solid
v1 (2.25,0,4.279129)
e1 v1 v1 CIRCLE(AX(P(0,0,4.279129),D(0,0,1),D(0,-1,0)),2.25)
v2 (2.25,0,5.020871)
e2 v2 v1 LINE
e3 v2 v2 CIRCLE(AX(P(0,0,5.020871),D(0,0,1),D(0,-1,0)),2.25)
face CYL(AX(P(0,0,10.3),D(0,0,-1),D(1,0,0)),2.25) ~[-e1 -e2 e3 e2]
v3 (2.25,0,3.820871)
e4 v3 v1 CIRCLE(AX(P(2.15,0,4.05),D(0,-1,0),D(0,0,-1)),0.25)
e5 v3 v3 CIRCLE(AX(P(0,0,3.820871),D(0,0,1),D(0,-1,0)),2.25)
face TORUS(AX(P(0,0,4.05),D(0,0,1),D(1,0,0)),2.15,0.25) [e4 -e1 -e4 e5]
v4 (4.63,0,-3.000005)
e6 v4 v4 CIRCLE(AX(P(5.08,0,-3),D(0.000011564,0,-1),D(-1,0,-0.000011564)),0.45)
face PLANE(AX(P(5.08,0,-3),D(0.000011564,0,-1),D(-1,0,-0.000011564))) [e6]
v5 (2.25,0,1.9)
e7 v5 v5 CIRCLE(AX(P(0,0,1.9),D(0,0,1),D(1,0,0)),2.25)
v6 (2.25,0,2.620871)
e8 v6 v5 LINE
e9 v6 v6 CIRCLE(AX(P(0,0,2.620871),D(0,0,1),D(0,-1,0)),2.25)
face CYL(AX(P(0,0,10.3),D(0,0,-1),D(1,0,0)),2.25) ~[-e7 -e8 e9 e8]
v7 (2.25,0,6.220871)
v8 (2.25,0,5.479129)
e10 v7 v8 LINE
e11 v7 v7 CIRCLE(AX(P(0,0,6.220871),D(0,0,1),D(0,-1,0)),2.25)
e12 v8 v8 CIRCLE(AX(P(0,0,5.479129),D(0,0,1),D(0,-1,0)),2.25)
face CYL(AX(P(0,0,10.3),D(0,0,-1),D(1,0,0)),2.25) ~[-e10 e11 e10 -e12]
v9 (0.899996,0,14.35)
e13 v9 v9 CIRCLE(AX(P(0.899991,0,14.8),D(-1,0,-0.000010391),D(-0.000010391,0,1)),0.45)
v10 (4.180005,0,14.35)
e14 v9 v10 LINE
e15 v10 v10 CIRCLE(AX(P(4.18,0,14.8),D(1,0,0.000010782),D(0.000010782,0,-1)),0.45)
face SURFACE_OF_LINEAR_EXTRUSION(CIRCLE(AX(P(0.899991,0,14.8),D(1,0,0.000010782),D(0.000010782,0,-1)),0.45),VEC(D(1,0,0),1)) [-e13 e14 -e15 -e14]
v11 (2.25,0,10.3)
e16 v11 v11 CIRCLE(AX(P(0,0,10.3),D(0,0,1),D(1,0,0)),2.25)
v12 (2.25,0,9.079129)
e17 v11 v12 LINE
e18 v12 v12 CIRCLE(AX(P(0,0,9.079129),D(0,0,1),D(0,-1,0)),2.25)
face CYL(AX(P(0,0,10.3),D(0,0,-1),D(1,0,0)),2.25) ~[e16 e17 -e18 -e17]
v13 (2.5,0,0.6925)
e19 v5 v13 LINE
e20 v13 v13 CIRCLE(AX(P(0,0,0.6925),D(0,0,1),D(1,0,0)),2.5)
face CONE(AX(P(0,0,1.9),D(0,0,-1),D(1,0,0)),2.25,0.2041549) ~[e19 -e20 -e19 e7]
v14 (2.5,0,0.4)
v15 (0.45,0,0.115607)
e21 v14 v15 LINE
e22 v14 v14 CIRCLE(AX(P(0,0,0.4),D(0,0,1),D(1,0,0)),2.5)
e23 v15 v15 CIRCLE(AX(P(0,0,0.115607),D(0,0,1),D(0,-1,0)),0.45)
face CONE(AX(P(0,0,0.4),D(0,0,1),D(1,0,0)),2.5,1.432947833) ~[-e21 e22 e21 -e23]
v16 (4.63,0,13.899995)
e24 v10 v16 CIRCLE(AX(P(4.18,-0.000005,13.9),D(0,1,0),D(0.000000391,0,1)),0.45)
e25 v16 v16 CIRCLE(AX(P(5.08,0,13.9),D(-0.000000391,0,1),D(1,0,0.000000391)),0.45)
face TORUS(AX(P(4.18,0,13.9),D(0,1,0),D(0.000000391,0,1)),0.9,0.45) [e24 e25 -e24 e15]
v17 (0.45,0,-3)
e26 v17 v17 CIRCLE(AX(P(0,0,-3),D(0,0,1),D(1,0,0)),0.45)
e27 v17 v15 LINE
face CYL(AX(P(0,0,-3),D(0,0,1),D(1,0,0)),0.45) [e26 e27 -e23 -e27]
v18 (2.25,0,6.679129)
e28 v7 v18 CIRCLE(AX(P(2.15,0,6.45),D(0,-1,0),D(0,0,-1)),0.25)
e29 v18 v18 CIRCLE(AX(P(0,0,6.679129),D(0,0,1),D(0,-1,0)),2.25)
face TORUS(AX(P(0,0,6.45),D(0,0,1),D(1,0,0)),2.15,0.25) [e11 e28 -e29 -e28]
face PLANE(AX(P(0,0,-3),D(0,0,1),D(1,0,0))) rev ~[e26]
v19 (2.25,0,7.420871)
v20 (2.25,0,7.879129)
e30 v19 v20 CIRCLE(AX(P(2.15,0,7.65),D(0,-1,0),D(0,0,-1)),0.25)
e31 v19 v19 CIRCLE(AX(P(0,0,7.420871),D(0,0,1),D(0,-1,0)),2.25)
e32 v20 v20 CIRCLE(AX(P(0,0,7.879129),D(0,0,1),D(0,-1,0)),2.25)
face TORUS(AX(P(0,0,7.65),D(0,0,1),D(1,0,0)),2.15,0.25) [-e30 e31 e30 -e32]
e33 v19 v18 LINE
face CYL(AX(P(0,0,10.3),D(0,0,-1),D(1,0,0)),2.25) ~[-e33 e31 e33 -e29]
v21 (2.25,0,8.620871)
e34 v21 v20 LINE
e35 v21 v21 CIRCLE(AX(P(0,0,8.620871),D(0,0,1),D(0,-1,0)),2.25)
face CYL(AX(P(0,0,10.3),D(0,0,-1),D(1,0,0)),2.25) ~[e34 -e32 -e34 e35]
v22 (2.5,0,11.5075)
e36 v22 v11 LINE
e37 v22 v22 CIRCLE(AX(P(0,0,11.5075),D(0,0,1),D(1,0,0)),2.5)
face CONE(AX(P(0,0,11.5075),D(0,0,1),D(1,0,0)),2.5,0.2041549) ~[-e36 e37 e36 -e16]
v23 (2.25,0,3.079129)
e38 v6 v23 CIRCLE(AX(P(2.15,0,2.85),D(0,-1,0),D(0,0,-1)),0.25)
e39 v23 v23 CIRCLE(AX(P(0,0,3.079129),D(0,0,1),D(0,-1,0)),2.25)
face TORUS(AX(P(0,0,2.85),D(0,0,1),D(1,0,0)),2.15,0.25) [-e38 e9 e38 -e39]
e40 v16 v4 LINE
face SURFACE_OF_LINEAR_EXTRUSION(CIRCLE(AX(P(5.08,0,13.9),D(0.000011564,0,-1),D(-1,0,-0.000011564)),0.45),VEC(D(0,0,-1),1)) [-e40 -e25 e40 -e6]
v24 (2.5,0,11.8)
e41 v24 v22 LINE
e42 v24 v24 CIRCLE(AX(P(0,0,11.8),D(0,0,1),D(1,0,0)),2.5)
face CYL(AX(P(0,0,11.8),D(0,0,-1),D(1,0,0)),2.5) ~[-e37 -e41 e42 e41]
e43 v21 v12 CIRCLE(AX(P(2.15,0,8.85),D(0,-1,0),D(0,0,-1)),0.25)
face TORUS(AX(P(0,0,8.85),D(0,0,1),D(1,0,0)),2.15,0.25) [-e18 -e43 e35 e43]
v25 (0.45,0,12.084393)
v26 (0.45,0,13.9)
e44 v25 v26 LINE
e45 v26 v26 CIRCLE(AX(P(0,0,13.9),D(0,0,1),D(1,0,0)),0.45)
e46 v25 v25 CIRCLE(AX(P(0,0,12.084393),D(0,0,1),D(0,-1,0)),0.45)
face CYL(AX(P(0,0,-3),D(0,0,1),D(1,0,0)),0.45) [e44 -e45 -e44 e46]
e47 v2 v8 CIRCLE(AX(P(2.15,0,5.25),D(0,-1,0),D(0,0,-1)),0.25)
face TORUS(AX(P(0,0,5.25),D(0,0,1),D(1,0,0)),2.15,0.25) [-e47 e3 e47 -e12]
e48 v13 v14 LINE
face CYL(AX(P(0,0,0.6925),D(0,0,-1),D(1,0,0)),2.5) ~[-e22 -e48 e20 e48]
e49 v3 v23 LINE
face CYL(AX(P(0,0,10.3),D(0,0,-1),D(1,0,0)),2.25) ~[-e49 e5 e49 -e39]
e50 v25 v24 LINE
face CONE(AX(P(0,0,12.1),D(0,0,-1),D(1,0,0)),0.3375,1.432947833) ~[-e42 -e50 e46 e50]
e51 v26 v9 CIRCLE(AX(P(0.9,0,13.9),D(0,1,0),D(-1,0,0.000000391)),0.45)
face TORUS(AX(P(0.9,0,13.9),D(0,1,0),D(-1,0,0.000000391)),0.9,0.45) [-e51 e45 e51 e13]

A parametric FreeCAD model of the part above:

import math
import FreeCAD as App
import Part
import Sketcher
from FreeCAD import Vector
Q = App.Units.Quantity


def add_polygon(sketch, points):
    """Adds a closed chain of lines whose ends are joined by coincident constraints."""
    first, n = sketch.GeometryCount, len(points)
    for a, b in zip(points, points[1:] + points[:1]):
        sketch.addGeometry(Part.LineSegment(App.Vector(*a, 0), App.Vector(*b, 0)), False)
    for i in range(n):
        sketch.addConstraint(Sketcher.Constraint("Coincident", first + i, 2, first + (i + 1) % n, 1))

doc = App.newDocument("Part")
body = doc.addObject("PartDesign::Body", "Body")

# Sketch on XZ plane
sketch1 = doc.addObject("Sketcher::SketchObject", "Sketch")
body.addObject(sketch1)
sketch1.AttachmentSupport = (doc.XZ_Plane, [""])
sketch1.MapMode = "FlatFace"
add_polygon(sketch1, [(0, 12.1), (0, 0.1), (0.34, 0.1), (2.5, 0.4), (2.5, 0.69), (2.25, 1.9), (2.25, 10.3), (2.5, 11.51), (2.5, 11.8), (0.34, 12.1)])  # lines 0-9
sketch1.addConstraint([
    Sketcher.Constraint("Vertical", 0),
    Sketcher.Constraint("Horizontal", 1),
    Sketcher.Constraint("Vertical", 3),
    Sketcher.Constraint("Vertical", 5),
    Sketcher.Constraint("Vertical", 7),
    Sketcher.Constraint("Horizontal", 9),
    Sketcher.Constraint("PointOnObject", 0, 2, -2),
    Sketcher.Constraint("Vertical", 3, 2, 6, 2),
    Sketcher.Constraint("Vertical", 1, 2, 8, 2),
    Sketcher.Constraint("Equal", 3, 7),
    Sketcher.Constraint("Equal", 4, 6),
    Sketcher.Constraint("Equal", 2, 8),
    Sketcher.Constraint("DistanceY", 0, 2, 0, 1, Q("12 mm")),
    Sketcher.Constraint("DistanceY", 5, 1, 5, 2, Q("8.4 mm")),
    Sketcher.Constraint("DistanceY", -1, 1, 0, 2, Q("0.1 mm")),
    Sketcher.Constraint("DistanceX", -1, 1, 2, 2, Q("2.5 mm")),
    Sketcher.Constraint("DistanceY", -1, 1, 2, 2, Q("0.4 mm")),
    Sketcher.Constraint("DistanceX", -1, 1, 4, 2, Q("2.25 mm")),
    Sketcher.Constraint("DistanceX", 1, 1, 1, 2, Q("0.3375 mm")),
    Sketcher.Constraint("DistanceY", 3, 1, 3, 2, Q("0.2925 mm")),
])
revolution = doc.addObject("PartDesign::Revolution", "Revolution")
body.addObject(revolution)
revolution.Profile = sketch1
revolution.ReferenceAxis = (sketch1, ["V_Axis"])
revolution.Angle = 360
body2 = doc.addObject("PartDesign::Body", "Body001")

# Sketch on XY plane
sketch2 = doc.addObject("Sketcher::SketchObject", "Sketch001")
body2.addObject(sketch2)
sketch2.AttachmentSupport = (doc.getObject("XY_Plane001"), [""])
sketch2.MapMode = "FlatFace"
sketch2.AttachmentOffset = App.Placement(Vector(0, 0, -2), App.Rotation())
sketch2.addGeometry(Part.Circle(Vector(0, 0, 0), Vector(0, 0, 1), 0.45), False)
sketch2.addConstraint([
    Sketcher.Constraint("Coincident", 0, 3, -1, 1),
    Sketcher.Constraint("Diameter", 0, Q("0.9 mm")),
])

# Sketch on XZ plane
sketch3 = doc.addObject("Sketcher::SketchObject", "Sketch002")
body2.addObject(sketch3)
sketch3.AttachmentSupport = (doc.getObject("XZ_Plane001"), [""])
sketch3.MapMode = "FlatFace"
sketch3.addGeometry([
    Part.LineSegment(Vector(0, -3, 0), Vector(0, 13.9, 0)),  # 0
    Part.ArcOfCircle(Part.Circle(Vector(0.9, 13.9, 0), Vector(0, 0, 1), 0.9), math.radians(90), math.radians(180)),  # 1
    Part.LineSegment(Vector(0.9, 14.8, 0), Vector(4.2, 14.8, 0)),  # 2
    Part.ArcOfCircle(Part.Circle(Vector(4.2, 13.9, 0), Vector(0, 0, 1), 0.9), math.radians(0), math.radians(90)),  # 3
    Part.LineSegment(Vector(5.1, 13.9, 0), Vector(5.1, -3, 0)),  # 4
], False)
sketch3.addConstraint([
    Sketcher.Constraint("Tangent", 0, 2, 1, 2),
    Sketcher.Constraint("Coincident", 1, 1, 2, 1),
    Sketcher.Constraint("Tangent", 2, 2, 3, 2),
    Sketcher.Constraint("Tangent", 3, 1, 4, 1),
    Sketcher.Constraint("Vertical", 0),
    Sketcher.Constraint("Horizontal", 2),
    Sketcher.Constraint("Vertical", 4),
    Sketcher.Constraint("Equal", 1, 3),
    Sketcher.Constraint("PointOnObject", 0, 1, -2),
    Sketcher.Constraint("Horizontal", 0, 1, 4, 2),
    Sketcher.Constraint("Radius", 1, Q("0.9 mm")),
    Sketcher.Constraint("DistanceY", 0, 1, 0, 2, Q("16.9 mm")),
    Sketcher.Constraint("DistanceY", 0, 1, -1, 1, Q("3 mm")),
    Sketcher.Constraint("DistanceX", -1, 1, 3, 3, Q("4.18 mm")),
    Sketcher.Constraint("DistanceX", 2, 1, 2, 2, Q("3.280009 mm")),
])
doc.recompute()

additivepipe = doc.addObject("PartDesign::AdditivePipe", "AdditivePipe")
body2.addObject(additivepipe)
additivepipe.Profile = sketch2
additivepipe.Spine = (sketch3, ["Edge1", "Edge2", "Edge3", "Edge4", "Edge5"])
body3 = doc.addObject("PartDesign::Body", "Body002")

# Sketch on XZ plane
sketch4 = doc.addObject("Sketcher::SketchObject", "Sketch003")
body3.addObject(sketch4)
sketch4.AttachmentSupport = (doc.getObject("XZ_Plane002"), [""])
sketch4.MapMode = "FlatFace"
sketch4.addGeometry([
    Part.LineSegment(Vector(2, 9.8, 0), Vector(2, 1.9, 0)),  # 0
    Part.LineSegment(Vector(2, 1.9, 0), Vector(2.15, 1.9, 0)),  # 1
    Part.LineSegment(Vector(2.15, 1.9, 0), Vector(2.15, 2.6, 0)),  # 2
    Part.ArcOfCircle(Part.Circle(Vector(2.15, 2.85, 0), Vector(0, 0, 1), 0.25), math.radians(-90), math.radians(90)),  # 3
    Part.LineSegment(Vector(2.15, 3.1, 0), Vector(2.15, 3.8, 0)),  # 4
    Part.ArcOfCircle(Part.Circle(Vector(2.15, 4.05, 0), Vector(0, 0, 1), 0.25), math.radians(-90), math.radians(90)),  # 5
    Part.LineSegment(Vector(2.15, 4.3, 0), Vector(2.15, 5, 0)),  # 6
    Part.ArcOfCircle(Part.Circle(Vector(2.15, 5.25, 0), Vector(0, 0, 1), 0.25), math.radians(-90), math.radians(90)),  # 7
    Part.LineSegment(Vector(2.15, 5.5, 0), Vector(2.15, 6.2, 0)),  # 8
    Part.ArcOfCircle(Part.Circle(Vector(2.15, 6.45, 0), Vector(0, 0, 1), 0.25), math.radians(-90), math.radians(90)),  # 9
    Part.LineSegment(Vector(2.15, 6.7, 0), Vector(2.15, 7.4, 0)),  # 10
    Part.ArcOfCircle(Part.Circle(Vector(2.15, 7.65, 0), Vector(0, 0, 1), 0.25), math.radians(-90), math.radians(90)),  # 11
    Part.LineSegment(Vector(2.15, 7.9, 0), Vector(2.15, 8.6, 0)),  # 12
    Part.ArcOfCircle(Part.Circle(Vector(2.15, 8.85, 0), Vector(0, 0, 1), 0.25), math.radians(-90), math.radians(90)),  # 13
    Part.LineSegment(Vector(2.15, 9.1, 0), Vector(2.15, 9.8, 0)),  # 14
    Part.LineSegment(Vector(2.15, 9.8, 0), Vector(2, 9.8, 0)),  # 15
], False)
sketch4.addConstraint([
    Sketcher.Constraint("Coincident", 0, 2, 1, 1),
    Sketcher.Constraint("Coincident", 1, 2, 2, 1),
    Sketcher.Constraint("Coincident", 2, 2, 3, 1),
    Sketcher.Constraint("Coincident", 3, 2, 4, 1),
    Sketcher.Constraint("Coincident", 4, 2, 5, 1),
    Sketcher.Constraint("Coincident", 5, 2, 6, 1),
    Sketcher.Constraint("Coincident", 6, 2, 7, 1),
    Sketcher.Constraint("Coincident", 7, 2, 8, 1),
    Sketcher.Constraint("Coincident", 8, 2, 9, 1),
    Sketcher.Constraint("Coincident", 9, 2, 10, 1),
    Sketcher.Constraint("Coincident", 10, 2, 11, 1),
    Sketcher.Constraint("Coincident", 11, 2, 12, 1),
    Sketcher.Constraint("Coincident", 12, 2, 13, 1),
    Sketcher.Constraint("Coincident", 13, 2, 14, 1),
    Sketcher.Constraint("Coincident", 14, 2, 15, 1),
    Sketcher.Constraint("Coincident", 15, 2, 0, 1),
    Sketcher.Constraint("Vertical", 0),
    Sketcher.Constraint("Horizontal", 1),
    Sketcher.Constraint("Vertical", 2),
    Sketcher.Constraint("Vertical", 4),
    Sketcher.Constraint("Vertical", 6),
    Sketcher.Constraint("Vertical", 8),
    Sketcher.Constraint("Vertical", 10),
    Sketcher.Constraint("Vertical", 12),
    Sketcher.Constraint("Vertical", 14),
    Sketcher.Constraint("Horizontal", 15),
    Sketcher.Constraint("Equal", 3, 5),
    Sketcher.Constraint("Equal", 5, 7),
    Sketcher.Constraint("Equal", 7, 9),
    Sketcher.Constraint("Equal", 9, 11),
    Sketcher.Constraint("Equal", 11, 13),
    Sketcher.Constraint("Vertical", 3, 3, 5, 3),
    Sketcher.Constraint("Vertical", 5, 3, 7, 3),
    Sketcher.Constraint("Vertical", 7, 3, 9, 3),
    Sketcher.Constraint("Vertical", 9, 3, 11, 3),
    Sketcher.Constraint("Vertical", 11, 3, 13, 3),
    Sketcher.Constraint("Vertical", 13, 3, 1, 2),
    Sketcher.Constraint("Vertical", 2, 2, 3, 2),
    Sketcher.Constraint("Vertical", 4, 2, 5, 2),
    Sketcher.Constraint("Vertical", 6, 2, 7, 2),
    Sketcher.Constraint("Vertical", 8, 2, 9, 2),
    Sketcher.Constraint("Vertical", 10, 2, 11, 2),
    Sketcher.Constraint("Vertical", 12, 2, 13, 2),
    Sketcher.Constraint("Equal", 2, 4),
    Sketcher.Constraint("Equal", 4, 6),
    Sketcher.Constraint("Equal", 6, 8),
    Sketcher.Constraint("Equal", 8, 10),
    Sketcher.Constraint("Equal", 10, 12),
    Sketcher.Constraint("Equal", 12, 14),
    Sketcher.Constraint("Radius", 3, Q("0.25 mm")),
    Sketcher.Constraint("DistanceY", 0, 2, 0, 1, Q("7.9 mm")),
    Sketcher.Constraint("DistanceX", -1, 1, 0, 2, Q("2 mm")),
    Sketcher.Constraint("DistanceY", -1, 1, 6, 2, Q("5 mm")),
    Sketcher.Constraint("DistanceX", 1, 1, 1, 2, Q("0.15 mm")),
])
revolution2 = doc.addObject("PartDesign::Revolution", "Revolution001")
body3.addObject(revolution2)
revolution2.Profile = sketch4
revolution2.ReferenceAxis = (sketch4, ["V_Axis"])
revolution2.Angle = 360
doc.recompute()

boolean = doc.addObject("PartDesign::Boolean", "Boolean")
body3.addObject(boolean)
boolean.Type = "Fuse"
boolean.addObjects([body])
doc.recompute()

boolean2 = doc.addObject("PartDesign::Boolean", "Boolean001")
body3.addObject(boolean2)
boolean2.Type = "Fuse"
boolean2.addObjects([body2])

doc.recompute()
